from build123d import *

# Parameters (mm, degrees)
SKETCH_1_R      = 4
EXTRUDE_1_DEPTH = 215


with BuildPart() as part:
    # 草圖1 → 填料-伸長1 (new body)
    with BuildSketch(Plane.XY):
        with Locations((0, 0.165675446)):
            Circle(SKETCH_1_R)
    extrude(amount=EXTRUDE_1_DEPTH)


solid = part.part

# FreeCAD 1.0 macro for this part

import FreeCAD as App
import Part
import Sketcher
from FreeCAD import Vector
Q = App.Units.Quantity

doc = App.newDocument("Part")
body = doc.addObject("PartDesign::Body", "Body")

# Sketch on XY plane
sketch1 = body.newObject("Sketcher::SketchObject", "Sketch")
sketch1.AttachmentSupport = (doc.getObject("XY_Plane"), [""])
sketch1.MapMode = "FlatFace"
sketch1.addGeometry(Part.Circle(Vector(0, 0.165675, 0), Vector(0, 0, 1), 4), False)
sketch1.addConstraint(Sketcher.Constraint("PointOnObject", 0, 3, -2))
sketch1.addConstraint(Sketcher.Constraint("Diameter", 0, Q("8 mm")))
sketch1.addConstraint(Sketcher.Constraint("DistanceY", -1, 1, 0, 3, Q("0.165675 mm")))
pad1 = body.newObject("PartDesign::Pad", "Pad")
pad1.Profile = sketch1
pad1.Length = 215

doc.recompute()
